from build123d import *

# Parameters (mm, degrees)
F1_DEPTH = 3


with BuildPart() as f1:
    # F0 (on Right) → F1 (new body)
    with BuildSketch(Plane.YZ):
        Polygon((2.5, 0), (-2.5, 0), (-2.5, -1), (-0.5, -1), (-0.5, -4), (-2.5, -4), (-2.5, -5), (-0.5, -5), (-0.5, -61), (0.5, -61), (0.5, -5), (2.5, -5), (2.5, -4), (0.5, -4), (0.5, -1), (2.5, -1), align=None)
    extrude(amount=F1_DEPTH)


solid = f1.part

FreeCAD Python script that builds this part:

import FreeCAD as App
import Part
import Sketcher


def add_polygon(sketch, points):
    """Adds a closed chain of lines whose ends are joined by coincident constraints."""
    first, n = sketch.GeometryCount, len(points)
    for a, b in zip(points, points[1:] + points[:1]):
        sketch.addGeometry(Part.LineSegment(App.Vector(*a, 0), App.Vector(*b, 0)), False)
    for i in range(n):
        sketch.addConstraint(Sketcher.Constraint("Coincident", first + i, 2, first + (i + 1) % n, 1))

doc = App.newDocument("Part")
body = doc.addObject("PartDesign::Body", "Body")

# Sketch on YZ plane
sketch1 = body.newObject("Sketcher::SketchObject", "Sketch")
sketch1.AttachmentSupport = (doc.getObject("YZ_Plane"), [""])
sketch1.MapMode = "FlatFace"
add_polygon(sketch1, [(2.5, 0), (-2.5, 0), (-2.5, -1), (-0.5, -1), (-0.5, -4), (-2.5, -4), (-2.5, -5), (-0.5, -5), (-0.5, -61), (0.5, -61), (0.5, -5), (2.5, -5), (2.5, -4), (0.5, -4), (0.5, -1), (2.5, -1)])  # lines 0-15
sketch1.addConstraint(Sketcher.Constraint("Horizontal", 0))
sketch1.addConstraint(Sketcher.Constraint("Vertical", 1))
sketch1.addConstraint(Sketcher.Constraint("Horizontal", 2))
sketch1.addConstraint(Sketcher.Constraint("Vertical", 3))
sketch1.addConstraint(Sketcher.Constraint("Horizontal", 4))
sketch1.addConstraint(Sketcher.Constraint("Vertical", 5))
sketch1.addConstraint(Sketcher.Constraint("Horizontal", 6))
sketch1.addConstraint(Sketcher.Constraint("Vertical", 7))
sketch1.addConstraint(Sketcher.Constraint("Horizontal", 8))
sketch1.addConstraint(Sketcher.Constraint("Vertical", 9))
sketch1.addConstraint(Sketcher.Constraint("Horizontal", 10))
sketch1.addConstraint(Sketcher.Constraint("Vertical", 11))
sketch1.addConstraint(Sketcher.Constraint("Horizontal", 12))
sketch1.addConstraint(Sketcher.Constraint("Vertical", 13))
sketch1.addConstraint(Sketcher.Constraint("Horizontal", 14))
sketch1.addConstraint(Sketcher.Constraint("Vertical", 15))
sketch1.addConstraint(Sketcher.Constraint("Symmetric", 0, 2, 15, 2, -1, 1))
sketch1.addConstraint(Sketcher.Constraint("Symmetric", 6, 2, 9, 2, -2))
sketch1.addConstraint(Sketcher.Constraint("Symmetric", 4, 2, 11, 2, -2))
sketch1.addConstraint(Sketcher.Constraint("Symmetric", 2, 2, 13, 2, -2))
sketch1.addConstraint(Sketcher.Constraint("Vertical", 1, 2, 4, 2))
sketch1.addConstraint(Sketcher.Constraint("Vertical", 3, 2, 6, 2))
sketch1.addConstraint(Sketcher.Constraint("Equal", 8, 1))
sketch1.addConstraint(Sketcher.Constraint("Equal", 1, 5))
sketch1.addConstraint(Sketcher.Constraint("DistanceX", 0, 2, 0, 1, 5.0))
sketch1.addConstraint(Sketcher.Constraint("DistanceX", 2, 1, 2, 2, 2.0))
sketch1.addConstraint(Sketcher.Constraint("DistanceY", 3, 2, 3, 1, 3.0))
sketch1.addConstraint(Sketcher.Constraint("DistanceY", 7, 2, 7, 1, 56.0))
pad1 = body.newObject("PartDesign::Pad", "Pad")
pad1.Profile = sketch1
pad1.Length = 3

doc.recompute()
